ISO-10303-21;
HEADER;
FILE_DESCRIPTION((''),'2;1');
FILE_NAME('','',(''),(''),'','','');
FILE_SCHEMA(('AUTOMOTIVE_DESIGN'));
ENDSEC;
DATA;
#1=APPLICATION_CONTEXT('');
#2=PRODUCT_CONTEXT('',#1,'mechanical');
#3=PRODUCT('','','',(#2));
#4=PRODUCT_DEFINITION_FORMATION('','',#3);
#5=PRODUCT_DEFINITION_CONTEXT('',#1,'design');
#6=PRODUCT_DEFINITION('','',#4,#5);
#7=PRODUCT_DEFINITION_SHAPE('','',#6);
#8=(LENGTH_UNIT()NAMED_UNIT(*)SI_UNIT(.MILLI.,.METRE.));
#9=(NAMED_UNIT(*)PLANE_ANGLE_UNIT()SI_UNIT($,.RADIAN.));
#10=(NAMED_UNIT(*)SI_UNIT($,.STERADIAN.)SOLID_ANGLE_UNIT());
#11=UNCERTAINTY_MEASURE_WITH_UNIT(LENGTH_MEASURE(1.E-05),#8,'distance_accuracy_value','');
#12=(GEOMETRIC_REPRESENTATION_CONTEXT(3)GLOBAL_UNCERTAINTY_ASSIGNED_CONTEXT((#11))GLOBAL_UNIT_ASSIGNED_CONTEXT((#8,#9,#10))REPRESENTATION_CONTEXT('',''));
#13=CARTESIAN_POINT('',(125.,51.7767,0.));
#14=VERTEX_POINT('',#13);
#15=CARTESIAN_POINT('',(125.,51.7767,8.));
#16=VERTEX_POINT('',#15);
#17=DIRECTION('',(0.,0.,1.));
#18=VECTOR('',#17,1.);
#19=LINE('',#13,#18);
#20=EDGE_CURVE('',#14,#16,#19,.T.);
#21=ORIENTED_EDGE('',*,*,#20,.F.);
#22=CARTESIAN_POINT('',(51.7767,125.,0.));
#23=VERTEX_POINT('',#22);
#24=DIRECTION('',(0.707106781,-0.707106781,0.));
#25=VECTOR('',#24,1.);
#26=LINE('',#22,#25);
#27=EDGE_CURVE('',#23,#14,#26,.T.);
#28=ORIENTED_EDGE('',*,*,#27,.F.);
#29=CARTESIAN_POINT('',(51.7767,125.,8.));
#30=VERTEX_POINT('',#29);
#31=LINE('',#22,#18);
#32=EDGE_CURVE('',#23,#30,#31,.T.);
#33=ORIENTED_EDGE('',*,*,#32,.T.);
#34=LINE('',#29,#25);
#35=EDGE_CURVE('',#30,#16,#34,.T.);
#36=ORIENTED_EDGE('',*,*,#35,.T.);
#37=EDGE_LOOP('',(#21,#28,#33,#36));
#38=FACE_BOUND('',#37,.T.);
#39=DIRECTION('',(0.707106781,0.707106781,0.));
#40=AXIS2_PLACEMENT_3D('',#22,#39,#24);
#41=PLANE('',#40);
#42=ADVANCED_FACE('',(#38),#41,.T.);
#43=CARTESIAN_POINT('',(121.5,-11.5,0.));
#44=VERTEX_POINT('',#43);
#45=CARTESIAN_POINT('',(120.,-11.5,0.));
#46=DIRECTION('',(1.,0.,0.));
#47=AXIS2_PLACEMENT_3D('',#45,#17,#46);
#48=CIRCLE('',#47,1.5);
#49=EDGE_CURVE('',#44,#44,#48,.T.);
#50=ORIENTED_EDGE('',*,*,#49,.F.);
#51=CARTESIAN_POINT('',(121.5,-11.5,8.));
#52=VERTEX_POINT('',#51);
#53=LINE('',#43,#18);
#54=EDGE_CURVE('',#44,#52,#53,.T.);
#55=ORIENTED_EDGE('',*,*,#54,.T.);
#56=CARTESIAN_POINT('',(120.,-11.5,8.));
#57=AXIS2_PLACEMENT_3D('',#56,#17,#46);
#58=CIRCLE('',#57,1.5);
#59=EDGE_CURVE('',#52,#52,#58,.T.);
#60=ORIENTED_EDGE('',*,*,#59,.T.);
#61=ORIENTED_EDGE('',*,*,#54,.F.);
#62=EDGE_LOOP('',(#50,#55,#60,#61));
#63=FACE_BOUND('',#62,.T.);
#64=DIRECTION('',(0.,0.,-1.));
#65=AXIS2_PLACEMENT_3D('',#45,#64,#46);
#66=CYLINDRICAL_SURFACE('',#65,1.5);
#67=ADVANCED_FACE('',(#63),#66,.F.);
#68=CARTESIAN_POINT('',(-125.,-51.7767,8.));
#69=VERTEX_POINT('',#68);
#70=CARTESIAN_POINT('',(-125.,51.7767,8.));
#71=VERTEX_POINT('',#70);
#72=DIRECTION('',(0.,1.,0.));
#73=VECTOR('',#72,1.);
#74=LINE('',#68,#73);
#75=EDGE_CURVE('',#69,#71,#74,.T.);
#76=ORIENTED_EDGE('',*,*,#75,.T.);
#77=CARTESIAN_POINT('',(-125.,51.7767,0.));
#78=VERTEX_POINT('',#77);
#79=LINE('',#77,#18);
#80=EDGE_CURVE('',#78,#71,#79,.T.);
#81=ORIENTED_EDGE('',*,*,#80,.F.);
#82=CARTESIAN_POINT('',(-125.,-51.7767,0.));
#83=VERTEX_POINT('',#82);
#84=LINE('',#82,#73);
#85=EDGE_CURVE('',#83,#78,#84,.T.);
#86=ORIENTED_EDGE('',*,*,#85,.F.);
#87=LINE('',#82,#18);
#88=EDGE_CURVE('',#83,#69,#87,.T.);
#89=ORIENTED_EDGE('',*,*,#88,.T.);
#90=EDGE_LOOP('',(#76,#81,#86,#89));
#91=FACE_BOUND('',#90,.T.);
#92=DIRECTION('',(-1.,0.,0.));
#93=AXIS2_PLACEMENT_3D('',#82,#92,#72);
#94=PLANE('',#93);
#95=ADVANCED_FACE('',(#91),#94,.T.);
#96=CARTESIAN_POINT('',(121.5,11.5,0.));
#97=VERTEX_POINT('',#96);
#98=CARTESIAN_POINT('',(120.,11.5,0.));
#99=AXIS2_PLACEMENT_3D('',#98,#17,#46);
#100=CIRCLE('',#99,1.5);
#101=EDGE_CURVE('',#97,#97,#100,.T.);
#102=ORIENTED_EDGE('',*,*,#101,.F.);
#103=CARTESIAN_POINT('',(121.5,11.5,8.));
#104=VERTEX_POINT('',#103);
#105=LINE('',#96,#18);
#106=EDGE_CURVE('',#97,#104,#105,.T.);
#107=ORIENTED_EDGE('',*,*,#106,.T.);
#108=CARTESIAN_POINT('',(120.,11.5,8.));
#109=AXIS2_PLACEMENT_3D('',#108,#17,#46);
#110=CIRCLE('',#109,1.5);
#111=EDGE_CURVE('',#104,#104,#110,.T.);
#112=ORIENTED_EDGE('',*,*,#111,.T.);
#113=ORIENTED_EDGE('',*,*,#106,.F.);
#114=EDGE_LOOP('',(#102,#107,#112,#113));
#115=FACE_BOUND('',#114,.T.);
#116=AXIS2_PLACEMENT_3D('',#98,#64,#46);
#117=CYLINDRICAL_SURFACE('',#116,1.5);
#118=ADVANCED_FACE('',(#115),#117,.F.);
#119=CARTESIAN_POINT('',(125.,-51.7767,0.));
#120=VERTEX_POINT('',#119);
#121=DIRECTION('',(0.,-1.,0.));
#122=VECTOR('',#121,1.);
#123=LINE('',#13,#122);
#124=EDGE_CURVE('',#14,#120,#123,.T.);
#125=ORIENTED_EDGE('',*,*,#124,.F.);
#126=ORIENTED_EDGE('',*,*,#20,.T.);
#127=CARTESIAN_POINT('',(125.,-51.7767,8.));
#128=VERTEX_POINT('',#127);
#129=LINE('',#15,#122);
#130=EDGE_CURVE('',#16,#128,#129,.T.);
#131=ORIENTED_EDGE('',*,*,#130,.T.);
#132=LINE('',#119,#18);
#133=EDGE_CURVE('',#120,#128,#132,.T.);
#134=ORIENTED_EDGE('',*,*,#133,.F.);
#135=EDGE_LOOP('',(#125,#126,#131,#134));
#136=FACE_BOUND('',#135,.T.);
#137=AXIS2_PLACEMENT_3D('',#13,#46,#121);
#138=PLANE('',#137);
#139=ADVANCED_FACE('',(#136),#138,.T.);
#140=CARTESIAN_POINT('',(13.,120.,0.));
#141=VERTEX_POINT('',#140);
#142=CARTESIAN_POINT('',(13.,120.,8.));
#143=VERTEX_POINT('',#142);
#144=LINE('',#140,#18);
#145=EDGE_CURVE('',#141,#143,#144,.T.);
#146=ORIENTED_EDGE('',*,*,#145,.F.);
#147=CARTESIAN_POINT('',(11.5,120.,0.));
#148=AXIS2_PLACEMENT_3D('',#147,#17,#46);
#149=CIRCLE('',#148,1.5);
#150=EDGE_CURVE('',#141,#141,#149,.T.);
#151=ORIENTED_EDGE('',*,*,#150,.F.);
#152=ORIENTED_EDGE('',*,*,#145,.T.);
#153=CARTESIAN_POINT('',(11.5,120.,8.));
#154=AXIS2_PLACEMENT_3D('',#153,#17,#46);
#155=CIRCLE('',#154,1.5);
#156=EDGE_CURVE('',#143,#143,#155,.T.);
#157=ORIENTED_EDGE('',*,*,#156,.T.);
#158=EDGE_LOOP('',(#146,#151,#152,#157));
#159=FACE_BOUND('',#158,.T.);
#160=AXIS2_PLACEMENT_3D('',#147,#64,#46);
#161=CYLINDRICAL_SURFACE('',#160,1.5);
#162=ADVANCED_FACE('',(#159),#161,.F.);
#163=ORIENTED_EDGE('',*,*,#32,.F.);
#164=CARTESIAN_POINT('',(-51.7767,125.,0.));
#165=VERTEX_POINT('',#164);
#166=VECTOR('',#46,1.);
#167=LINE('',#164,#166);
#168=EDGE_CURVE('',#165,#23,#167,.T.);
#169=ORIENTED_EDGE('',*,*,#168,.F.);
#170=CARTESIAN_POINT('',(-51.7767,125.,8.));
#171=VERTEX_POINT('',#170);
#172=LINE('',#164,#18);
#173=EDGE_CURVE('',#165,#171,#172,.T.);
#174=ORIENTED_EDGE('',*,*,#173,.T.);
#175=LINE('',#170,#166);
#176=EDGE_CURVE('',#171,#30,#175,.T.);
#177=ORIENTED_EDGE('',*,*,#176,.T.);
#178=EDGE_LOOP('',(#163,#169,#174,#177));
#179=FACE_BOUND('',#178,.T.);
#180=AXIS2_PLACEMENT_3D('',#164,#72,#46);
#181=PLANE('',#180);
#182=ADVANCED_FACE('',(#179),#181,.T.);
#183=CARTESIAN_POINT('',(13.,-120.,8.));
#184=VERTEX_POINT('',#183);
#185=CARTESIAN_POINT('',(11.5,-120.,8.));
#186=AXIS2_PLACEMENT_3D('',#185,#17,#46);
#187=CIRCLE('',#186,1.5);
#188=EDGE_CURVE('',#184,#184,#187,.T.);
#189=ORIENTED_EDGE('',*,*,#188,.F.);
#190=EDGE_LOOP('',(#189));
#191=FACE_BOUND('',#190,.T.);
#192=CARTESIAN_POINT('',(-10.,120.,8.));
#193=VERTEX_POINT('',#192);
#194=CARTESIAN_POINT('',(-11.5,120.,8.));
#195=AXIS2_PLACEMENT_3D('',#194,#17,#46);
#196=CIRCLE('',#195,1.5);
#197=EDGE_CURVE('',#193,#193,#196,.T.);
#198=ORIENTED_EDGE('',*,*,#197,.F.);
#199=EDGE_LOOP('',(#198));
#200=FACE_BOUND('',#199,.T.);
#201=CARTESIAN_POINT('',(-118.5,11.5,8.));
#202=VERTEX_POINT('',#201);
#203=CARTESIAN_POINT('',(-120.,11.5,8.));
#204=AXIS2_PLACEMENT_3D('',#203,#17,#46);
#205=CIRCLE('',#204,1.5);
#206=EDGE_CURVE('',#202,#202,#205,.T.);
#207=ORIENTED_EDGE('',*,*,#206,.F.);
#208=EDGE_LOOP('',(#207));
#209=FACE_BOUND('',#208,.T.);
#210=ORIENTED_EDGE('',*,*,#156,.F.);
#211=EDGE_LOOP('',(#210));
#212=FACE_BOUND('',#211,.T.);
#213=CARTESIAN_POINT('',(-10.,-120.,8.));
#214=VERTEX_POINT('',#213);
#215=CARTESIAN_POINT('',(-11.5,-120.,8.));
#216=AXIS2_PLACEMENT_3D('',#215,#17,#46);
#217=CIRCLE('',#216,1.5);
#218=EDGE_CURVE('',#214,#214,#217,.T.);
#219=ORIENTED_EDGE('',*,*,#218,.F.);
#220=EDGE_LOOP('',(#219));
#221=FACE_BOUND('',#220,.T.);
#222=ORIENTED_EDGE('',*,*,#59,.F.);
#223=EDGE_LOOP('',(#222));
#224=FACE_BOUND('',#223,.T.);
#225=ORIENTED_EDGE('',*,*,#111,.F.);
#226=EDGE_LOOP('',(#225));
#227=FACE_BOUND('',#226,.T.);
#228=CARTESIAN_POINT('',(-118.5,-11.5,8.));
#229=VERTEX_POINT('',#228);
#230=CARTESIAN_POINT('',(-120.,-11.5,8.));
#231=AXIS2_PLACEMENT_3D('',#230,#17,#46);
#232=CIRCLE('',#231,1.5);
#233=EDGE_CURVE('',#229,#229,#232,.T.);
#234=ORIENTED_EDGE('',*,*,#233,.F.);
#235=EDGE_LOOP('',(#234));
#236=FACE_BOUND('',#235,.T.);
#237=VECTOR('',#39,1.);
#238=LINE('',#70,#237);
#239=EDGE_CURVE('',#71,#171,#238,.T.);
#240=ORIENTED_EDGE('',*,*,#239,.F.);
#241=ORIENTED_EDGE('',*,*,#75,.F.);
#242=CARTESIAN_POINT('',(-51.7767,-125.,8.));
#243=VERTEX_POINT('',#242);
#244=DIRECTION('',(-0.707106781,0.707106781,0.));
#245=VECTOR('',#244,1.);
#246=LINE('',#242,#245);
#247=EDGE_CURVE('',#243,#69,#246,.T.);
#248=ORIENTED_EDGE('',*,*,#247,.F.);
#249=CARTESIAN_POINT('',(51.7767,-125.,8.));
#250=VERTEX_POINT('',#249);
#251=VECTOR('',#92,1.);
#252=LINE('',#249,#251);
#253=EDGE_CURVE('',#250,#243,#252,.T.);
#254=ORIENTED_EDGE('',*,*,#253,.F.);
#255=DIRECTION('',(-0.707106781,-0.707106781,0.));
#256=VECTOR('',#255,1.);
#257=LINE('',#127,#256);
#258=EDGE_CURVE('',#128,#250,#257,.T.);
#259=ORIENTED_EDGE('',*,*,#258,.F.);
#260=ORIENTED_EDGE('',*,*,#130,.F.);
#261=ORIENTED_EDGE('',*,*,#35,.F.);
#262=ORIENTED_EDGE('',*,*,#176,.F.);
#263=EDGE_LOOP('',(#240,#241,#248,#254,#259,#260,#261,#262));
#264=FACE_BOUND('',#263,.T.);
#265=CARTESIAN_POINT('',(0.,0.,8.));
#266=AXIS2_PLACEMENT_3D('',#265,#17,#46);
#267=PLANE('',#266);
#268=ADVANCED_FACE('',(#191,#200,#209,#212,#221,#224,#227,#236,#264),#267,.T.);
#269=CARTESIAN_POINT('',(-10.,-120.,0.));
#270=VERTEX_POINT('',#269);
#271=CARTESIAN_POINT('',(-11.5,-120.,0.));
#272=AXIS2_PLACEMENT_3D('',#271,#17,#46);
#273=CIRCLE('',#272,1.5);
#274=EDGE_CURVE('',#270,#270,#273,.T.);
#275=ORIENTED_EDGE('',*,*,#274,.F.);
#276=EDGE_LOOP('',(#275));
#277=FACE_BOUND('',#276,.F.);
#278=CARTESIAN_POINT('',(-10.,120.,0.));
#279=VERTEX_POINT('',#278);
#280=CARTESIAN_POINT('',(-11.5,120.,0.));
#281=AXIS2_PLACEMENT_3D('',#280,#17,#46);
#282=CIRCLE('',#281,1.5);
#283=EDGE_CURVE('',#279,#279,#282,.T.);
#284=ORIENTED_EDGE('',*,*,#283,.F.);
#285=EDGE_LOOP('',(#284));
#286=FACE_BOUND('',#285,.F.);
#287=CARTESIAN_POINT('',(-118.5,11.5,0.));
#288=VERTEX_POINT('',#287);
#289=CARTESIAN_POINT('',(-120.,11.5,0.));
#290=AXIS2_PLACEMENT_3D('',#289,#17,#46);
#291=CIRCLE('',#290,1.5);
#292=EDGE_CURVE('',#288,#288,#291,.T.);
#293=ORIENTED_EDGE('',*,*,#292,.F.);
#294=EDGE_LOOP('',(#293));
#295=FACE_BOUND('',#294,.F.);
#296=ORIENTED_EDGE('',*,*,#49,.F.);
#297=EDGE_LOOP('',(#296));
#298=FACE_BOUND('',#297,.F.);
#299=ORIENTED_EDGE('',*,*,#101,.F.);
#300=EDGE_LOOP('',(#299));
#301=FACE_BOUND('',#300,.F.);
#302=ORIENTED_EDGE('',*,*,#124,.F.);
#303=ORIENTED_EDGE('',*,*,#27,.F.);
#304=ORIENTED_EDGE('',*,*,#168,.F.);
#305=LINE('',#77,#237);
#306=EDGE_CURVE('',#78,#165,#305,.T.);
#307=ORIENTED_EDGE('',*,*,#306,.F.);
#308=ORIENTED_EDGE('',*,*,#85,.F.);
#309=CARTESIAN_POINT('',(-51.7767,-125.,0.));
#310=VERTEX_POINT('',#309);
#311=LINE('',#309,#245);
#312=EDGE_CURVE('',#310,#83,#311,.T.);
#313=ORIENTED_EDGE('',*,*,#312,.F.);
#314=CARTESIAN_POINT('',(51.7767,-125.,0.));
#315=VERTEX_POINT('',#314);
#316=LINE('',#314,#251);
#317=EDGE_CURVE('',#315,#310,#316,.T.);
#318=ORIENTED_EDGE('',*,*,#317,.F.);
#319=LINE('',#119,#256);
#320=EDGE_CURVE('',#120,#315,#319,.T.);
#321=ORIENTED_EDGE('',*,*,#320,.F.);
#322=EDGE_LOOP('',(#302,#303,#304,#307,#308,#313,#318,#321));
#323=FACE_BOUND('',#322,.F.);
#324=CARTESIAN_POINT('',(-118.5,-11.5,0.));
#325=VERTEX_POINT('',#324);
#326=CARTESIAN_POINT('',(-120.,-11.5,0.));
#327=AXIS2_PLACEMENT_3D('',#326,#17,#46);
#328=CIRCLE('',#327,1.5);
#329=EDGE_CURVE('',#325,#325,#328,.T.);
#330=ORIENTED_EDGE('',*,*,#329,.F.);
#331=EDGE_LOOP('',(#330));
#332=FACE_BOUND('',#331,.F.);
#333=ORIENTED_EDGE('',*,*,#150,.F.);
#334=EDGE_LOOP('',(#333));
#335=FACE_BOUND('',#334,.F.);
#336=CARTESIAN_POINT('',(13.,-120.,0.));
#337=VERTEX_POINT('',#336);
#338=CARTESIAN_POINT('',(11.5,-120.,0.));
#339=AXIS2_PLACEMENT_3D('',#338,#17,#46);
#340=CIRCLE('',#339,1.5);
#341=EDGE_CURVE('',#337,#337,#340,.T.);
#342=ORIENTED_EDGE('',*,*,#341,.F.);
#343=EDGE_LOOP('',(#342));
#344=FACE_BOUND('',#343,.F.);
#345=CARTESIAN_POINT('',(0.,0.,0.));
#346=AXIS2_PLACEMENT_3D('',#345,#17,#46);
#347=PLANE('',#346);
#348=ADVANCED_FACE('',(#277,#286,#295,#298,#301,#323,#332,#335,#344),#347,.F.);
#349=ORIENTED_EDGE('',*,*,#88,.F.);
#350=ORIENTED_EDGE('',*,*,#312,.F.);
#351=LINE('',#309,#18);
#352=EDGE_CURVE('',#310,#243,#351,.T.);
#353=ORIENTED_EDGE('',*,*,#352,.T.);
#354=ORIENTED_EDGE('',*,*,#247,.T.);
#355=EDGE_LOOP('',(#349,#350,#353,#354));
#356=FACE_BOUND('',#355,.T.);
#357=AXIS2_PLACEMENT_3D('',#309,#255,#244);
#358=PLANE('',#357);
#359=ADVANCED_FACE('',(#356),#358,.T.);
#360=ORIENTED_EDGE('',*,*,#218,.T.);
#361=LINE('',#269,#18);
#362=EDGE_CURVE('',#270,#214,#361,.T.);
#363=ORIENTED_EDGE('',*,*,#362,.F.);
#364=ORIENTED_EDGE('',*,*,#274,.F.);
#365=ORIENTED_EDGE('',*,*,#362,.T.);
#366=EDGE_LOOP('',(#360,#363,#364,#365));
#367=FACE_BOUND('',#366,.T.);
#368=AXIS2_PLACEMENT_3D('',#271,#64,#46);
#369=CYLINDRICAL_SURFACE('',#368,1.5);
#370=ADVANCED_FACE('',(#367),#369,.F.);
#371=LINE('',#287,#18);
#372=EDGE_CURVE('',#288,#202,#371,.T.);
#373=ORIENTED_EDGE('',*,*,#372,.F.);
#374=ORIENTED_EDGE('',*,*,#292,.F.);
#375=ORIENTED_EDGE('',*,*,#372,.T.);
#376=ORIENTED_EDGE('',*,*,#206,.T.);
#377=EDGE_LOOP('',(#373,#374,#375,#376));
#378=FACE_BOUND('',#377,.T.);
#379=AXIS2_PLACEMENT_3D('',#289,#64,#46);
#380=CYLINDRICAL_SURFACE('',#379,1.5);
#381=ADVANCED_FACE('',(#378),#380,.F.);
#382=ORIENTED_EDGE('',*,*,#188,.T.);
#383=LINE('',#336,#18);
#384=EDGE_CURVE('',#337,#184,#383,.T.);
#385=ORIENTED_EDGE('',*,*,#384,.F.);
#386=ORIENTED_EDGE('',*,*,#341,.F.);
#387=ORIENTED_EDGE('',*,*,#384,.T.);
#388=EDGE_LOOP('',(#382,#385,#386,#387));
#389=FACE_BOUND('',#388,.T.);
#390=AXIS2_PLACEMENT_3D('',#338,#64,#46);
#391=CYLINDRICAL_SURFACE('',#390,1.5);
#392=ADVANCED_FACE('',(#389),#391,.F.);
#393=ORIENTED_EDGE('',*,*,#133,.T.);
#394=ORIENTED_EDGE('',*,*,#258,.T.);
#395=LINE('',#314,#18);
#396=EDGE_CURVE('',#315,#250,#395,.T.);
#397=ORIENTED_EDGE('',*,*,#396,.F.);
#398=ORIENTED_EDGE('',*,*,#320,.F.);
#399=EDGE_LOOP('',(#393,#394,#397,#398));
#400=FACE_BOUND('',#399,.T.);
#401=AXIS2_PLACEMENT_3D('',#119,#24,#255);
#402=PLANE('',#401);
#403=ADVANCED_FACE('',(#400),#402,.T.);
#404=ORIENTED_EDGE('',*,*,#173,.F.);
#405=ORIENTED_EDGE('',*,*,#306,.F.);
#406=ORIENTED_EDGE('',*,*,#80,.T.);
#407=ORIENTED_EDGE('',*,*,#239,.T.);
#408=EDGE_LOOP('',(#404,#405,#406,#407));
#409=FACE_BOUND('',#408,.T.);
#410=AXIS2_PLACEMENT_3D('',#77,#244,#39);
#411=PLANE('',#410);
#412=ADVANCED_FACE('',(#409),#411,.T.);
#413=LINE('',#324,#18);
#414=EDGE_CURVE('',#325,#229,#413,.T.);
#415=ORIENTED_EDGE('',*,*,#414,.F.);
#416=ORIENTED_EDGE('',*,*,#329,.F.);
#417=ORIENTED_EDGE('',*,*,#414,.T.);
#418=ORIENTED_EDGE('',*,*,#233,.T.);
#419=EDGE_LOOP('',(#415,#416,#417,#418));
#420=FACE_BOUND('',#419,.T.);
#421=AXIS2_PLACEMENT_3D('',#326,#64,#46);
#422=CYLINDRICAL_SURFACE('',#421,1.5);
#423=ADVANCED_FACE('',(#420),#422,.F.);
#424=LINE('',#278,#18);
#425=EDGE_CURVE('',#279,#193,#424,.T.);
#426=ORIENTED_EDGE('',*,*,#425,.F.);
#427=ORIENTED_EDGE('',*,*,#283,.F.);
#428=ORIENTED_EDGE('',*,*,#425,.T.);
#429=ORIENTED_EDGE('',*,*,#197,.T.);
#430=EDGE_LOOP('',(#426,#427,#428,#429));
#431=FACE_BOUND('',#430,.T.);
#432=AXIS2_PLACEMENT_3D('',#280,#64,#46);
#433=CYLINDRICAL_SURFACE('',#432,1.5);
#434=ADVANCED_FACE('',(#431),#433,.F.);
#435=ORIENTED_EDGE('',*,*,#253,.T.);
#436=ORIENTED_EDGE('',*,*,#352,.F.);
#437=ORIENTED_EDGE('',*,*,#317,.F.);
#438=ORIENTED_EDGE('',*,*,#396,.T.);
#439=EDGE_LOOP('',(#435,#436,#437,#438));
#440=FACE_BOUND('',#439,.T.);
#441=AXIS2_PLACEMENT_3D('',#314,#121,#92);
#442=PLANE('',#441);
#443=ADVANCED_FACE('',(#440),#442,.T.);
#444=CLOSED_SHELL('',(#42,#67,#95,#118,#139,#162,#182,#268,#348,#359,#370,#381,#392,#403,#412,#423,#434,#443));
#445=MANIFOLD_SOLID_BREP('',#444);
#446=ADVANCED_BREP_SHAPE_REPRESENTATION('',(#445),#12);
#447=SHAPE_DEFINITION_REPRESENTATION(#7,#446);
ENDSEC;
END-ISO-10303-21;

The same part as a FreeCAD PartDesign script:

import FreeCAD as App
import Part
import Sketcher
from FreeCAD import Vector

doc = App.newDocument("Part")
params = doc.addObject("Spreadsheet::Sheet", "Params")
for row, (alias, value) in enumerate([
    ("sketch1_diameter", "3 mm"),
    ("pad1_length", "8 mm"),
], start=1):
    params.set(f"A{row}", alias)
    params.set(f"B{row}", "=" + value)
    params.setAlias(f"B{row}", alias)

body = doc.addObject("PartDesign::Body", "Body")

sketch1 = body.newObject("Sketcher::SketchObject", "Sketch")
sketch1.AttachmentSupport = (doc.getObject("XY_Plane"), [""])
sketch1.MapMode = "FlatFace"
sketch1.addGeometry([
    Part.LineSegment(Vector(-125, -51.8, 0), Vector(-51.8, -125, 0)),
    Part.LineSegment(Vector(-51.8, -125, 0), Vector(51.8, -125, 0)),
    Part.LineSegment(Vector(51.8, -125, 0), Vector(125, -51.8, 0)),
    Part.LineSegment(Vector(125, -51.8, 0), Vector(125, 51.8, 0)),
    Part.LineSegment(Vector(125, 51.8, 0), Vector(51.8, 125, 0)),
    Part.LineSegment(Vector(51.8, 125, 0), Vector(-51.8, 125, 0)),
    Part.LineSegment(Vector(-51.8, 125, 0), Vector(-125, 51.8, 0)),
    Part.LineSegment(Vector(-125, 51.8, 0), Vector(-125, -51.8, 0)),
    Part.Circle(Vector(-11.5, -120, 0), Vector(0, 0, 1), 1.5),
    Part.Circle(Vector(-120, -11.5, 0), Vector(0, 0, 1), 1.5),
    Part.Circle(Vector(11.5, -120, 0), Vector(0, 0, 1), 1.5),
    Part.Circle(Vector(120, -11.5, 0), Vector(0, 0, 1), 1.5),
    Part.Circle(Vector(-120, 11.5, 0), Vector(0, 0, 1), 1.5),
    Part.Circle(Vector(-11.5, 120, 0), Vector(0, 0, 1), 1.5),
    Part.Circle(Vector(120, 11.5, 0), Vector(0, 0, 1), 1.5),
    Part.Circle(Vector(11.5, 120, 0), Vector(0, 0, 1), 1.5),
], False)
sketch1.addConstraint([
    Sketcher.Constraint("Coincident", 0, 2, 1, 1),
    Sketcher.Constraint("Coincident", 1, 2, 2, 1),
    Sketcher.Constraint("Coincident", 2, 2, 3, 1),
    Sketcher.Constraint("Coincident", 3, 2, 4, 1),
    Sketcher.Constraint("Coincident", 4, 2, 5, 1),
    Sketcher.Constraint("Coincident", 5, 2, 6, 1),
    Sketcher.Constraint("Coincident", 6, 2, 7, 1),
    Sketcher.Constraint("Coincident", 7, 2, 0, 1),
    Sketcher.Constraint("Horizontal", 1),
    Sketcher.Constraint("Vertical", 3),
    Sketcher.Constraint("Horizontal", 5),
    Sketcher.Constraint("Vertical", 7),
    Sketcher.Constraint("Equal", 8, 9),
    Sketcher.Constraint("Equal", 9, 10),
    Sketcher.Constraint("Equal", 10, 11),
    Sketcher.Constraint("Equal", 11, 12),
    Sketcher.Constraint("Equal", 12, 13),
    Sketcher.Constraint("Equal", 13, 14),
    Sketcher.Constraint("Equal", 14, 15),
    Sketcher.Constraint("Symmetric", 11, 3, 12, 3, -1, 1),
    Sketcher.Constraint("Symmetric", 10, 3, 13, 3, -1, 1),
    Sketcher.Constraint("Symmetric", 9, 3, 14, 3, -1, 1),
    Sketcher.Constraint("Symmetric", 8, 3, 15, 3, -1, 1),
    Sketcher.Constraint("Symmetric", 0, 2, 4, 2, -1, 1),
    Sketcher.Constraint("Symmetric", 2, 2, 6, 2, -1, 1),
    Sketcher.Constraint("Symmetric", 8, 3, 10, 3, -2),
    Sketcher.Constraint("Symmetric", 9, 3, 11, 3, -2),
    Sketcher.Constraint("Perpendicular", 0, 2),
    Sketcher.Constraint("Perpendicular", 2, 4),
    Sketcher.Constraint("Perpendicular", 4, 6),
    Sketcher.Constraint("Horizontal", 3, 2, 6, 2),
    Sketcher.Constraint("Vertical", 1, 2, 4, 2),
    Sketcher.Constraint("Equal", 5, 3),
    Sketcher.Constraint("Diameter", 8, 3.0),
    Sketcher.Constraint("DistanceY", 0, 2, 8, 3, 5.0),
    Sketcher.Constraint("DistanceX", 11, 3, 2, 2, 5.0),
    Sketcher.Constraint("DistanceX", 8, 3, -1, 1, 11.5),
    Sketcher.Constraint("DistanceY", 9, 3, -1, 1, 11.5),
    Sketcher.Constraint("DistanceY", 8, 3, -1, 1, 120.0),
    Sketcher.Constraint("DistanceX", 1, 1, 1, 2, 103.5534),
])
sketch1.setExpression("Constraints[33]", "Params.sketch1_diameter")
pad1 = body.newObject("PartDesign::Pad", "Pad")
pad1.Profile = sketch1
pad1.setExpression("Length", "Params.pad1_length")

doc.recompute()
